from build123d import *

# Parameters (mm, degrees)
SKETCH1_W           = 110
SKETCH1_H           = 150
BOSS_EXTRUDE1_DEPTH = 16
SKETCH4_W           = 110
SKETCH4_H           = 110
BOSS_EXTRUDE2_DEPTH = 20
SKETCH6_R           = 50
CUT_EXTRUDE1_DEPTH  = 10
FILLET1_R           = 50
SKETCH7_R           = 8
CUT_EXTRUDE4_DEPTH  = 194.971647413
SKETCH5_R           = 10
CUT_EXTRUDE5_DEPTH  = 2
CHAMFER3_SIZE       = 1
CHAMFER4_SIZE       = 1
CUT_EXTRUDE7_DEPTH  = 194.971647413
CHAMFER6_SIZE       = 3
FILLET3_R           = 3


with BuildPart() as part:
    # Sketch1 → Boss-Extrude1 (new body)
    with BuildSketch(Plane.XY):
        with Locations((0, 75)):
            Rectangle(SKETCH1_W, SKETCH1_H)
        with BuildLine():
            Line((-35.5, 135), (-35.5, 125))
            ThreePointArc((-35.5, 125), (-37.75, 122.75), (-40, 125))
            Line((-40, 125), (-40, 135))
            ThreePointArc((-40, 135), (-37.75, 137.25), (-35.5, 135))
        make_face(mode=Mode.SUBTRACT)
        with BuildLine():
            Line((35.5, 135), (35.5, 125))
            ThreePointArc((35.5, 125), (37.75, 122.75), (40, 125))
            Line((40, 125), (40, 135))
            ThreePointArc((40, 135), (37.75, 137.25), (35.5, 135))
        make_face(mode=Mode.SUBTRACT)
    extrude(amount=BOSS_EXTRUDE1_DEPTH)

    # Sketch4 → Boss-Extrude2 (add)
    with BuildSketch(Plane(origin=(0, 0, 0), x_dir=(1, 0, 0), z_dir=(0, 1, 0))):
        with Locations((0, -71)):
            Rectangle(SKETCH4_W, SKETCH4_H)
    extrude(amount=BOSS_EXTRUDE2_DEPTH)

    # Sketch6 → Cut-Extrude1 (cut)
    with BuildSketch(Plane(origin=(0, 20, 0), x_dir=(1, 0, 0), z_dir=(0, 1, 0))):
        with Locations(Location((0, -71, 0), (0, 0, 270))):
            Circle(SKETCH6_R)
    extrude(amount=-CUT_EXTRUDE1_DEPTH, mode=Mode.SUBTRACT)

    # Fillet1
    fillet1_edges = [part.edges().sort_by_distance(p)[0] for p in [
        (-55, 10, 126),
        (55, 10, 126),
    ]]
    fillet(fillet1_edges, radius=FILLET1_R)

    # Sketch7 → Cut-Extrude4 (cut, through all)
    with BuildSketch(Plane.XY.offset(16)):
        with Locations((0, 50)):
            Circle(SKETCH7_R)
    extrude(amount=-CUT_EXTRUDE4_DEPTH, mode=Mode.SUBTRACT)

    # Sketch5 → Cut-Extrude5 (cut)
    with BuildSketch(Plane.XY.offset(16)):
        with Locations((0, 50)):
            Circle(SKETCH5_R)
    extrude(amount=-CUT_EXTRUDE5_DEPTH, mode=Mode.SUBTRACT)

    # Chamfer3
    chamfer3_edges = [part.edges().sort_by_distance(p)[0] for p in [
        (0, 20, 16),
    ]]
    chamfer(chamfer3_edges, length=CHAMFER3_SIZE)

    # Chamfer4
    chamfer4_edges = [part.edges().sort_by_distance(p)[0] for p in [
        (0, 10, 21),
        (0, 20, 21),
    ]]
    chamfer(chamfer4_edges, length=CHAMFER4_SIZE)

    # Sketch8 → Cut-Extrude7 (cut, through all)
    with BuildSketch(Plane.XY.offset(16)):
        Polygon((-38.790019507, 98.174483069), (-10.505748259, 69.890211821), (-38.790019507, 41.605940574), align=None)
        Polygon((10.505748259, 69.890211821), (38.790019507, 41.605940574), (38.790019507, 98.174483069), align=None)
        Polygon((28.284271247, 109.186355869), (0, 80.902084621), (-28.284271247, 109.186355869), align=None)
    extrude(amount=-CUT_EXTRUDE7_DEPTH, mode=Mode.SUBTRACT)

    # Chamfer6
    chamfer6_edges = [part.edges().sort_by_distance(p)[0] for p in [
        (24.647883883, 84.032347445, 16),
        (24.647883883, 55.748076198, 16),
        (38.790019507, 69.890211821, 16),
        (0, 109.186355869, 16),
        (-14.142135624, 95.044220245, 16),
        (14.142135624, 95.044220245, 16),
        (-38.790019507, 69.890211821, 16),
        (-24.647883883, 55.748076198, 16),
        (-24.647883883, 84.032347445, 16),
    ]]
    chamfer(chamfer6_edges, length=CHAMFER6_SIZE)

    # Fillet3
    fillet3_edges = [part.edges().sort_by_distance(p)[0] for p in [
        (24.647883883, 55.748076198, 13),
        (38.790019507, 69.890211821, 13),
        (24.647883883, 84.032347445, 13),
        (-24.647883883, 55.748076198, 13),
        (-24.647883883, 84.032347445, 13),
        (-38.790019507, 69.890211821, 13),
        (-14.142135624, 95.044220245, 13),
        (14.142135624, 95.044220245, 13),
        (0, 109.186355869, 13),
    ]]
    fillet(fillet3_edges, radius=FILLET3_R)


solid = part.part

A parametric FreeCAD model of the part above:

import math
import FreeCAD as App
import Part
import Sketcher
Q = App.Units.Quantity


def edges_at(feature, points):
    """Names of the edges that pass closest to the given points."""
    edges = feature.Shape.Edges
    near = lambda p: min(range(len(edges)), key=lambda i: edges[i].distToShape(Part.Vertex(*p))[0])
    return sorted({f"Edge{near(p) + 1}" for p in points})

doc = App.newDocument("Part")
body = doc.addObject("PartDesign::Body", "Body")

sketch1 = body.newObject("Sketcher::SketchObject", "Sketch")
sketch1.AttachmentSupport = (doc.getObject("XY_Plane"), [""])
sketch1.MapMode = "FlatFace"
sketch1.addGeometry(Part.LineSegment(App.Vector(-55, 150, 0), App.Vector(-55, 0, 0)), False)
sketch1.addGeometry(Part.LineSegment(App.Vector(-55, 0, 0), App.Vector(55, 0, 0)), False)
sketch1.addGeometry(Part.LineSegment(App.Vector(55, 0, 0), App.Vector(55, 150, 0)), False)
sketch1.addGeometry(Part.LineSegment(App.Vector(55, 150, 0), App.Vector(-55, 150, 0)), False)
sketch1.addGeometry(Part.ArcOfCircle(Part.Circle(App.Vector(-37.75, 135, 0), App.Vector(0, 0, 1), 2.25), math.radians(0), math.radians(180)), False)
sketch1.addGeometry(Part.LineSegment(App.Vector(-35.5, 135, 0), App.Vector(-35.5, 125, 0)), False)
sketch1.addGeometry(Part.ArcOfCircle(Part.Circle(App.Vector(-37.75, 125, 0), App.Vector(0, 0, 1), 2.25), math.radians(180), math.radians(360)), False)
sketch1.addGeometry(Part.LineSegment(App.Vector(-40, 125, 0), App.Vector(-40, 135, 0)), False)
sketch1.addGeometry(Part.LineSegment(App.Vector(35.5, 125, 0), App.Vector(35.5, 135, 0)), False)
sketch1.addGeometry(Part.ArcOfCircle(Part.Circle(App.Vector(37.75, 135, 0), App.Vector(0, 0, 1), 2.25), math.radians(0), math.radians(180)), False)
sketch1.addGeometry(Part.LineSegment(App.Vector(40, 135, 0), App.Vector(40, 125, 0)), False)
sketch1.addGeometry(Part.ArcOfCircle(Part.Circle(App.Vector(37.75, 125, 0), App.Vector(0, 0, 1), 2.25), math.radians(180), math.radians(360)), False)
sketch1.addConstraint(Sketcher.Constraint("Coincident", 0, 2, 1, 1))
sketch1.addConstraint(Sketcher.Constraint("Coincident", 1, 2, 2, 1))
sketch1.addConstraint(Sketcher.Constraint("Coincident", 2, 2, 3, 1))
sketch1.addConstraint(Sketcher.Constraint("Coincident", 3, 2, 0, 1))
sketch1.addConstraint(Sketcher.Constraint("Tangent", 4, 1, 5, 1))
sketch1.addConstraint(Sketcher.Constraint("Tangent", 5, 2, 6, 2))
sketch1.addConstraint(Sketcher.Constraint("Tangent", 6, 1, 7, 1))
sketch1.addConstraint(Sketcher.Constraint("Tangent", 7, 2, 4, 2))
sketch1.addConstraint(Sketcher.Constraint("Tangent", 8, 2, 9, 2))
sketch1.addConstraint(Sketcher.Constraint("Tangent", 9, 1, 10, 1))
sketch1.addConstraint(Sketcher.Constraint("Tangent", 10, 2, 11, 2))
sketch1.addConstraint(Sketcher.Constraint("Tangent", 11, 1, 8, 1))
sketch1.addConstraint(Sketcher.Constraint("Vertical", 0))
sketch1.addConstraint(Sketcher.Constraint("Horizontal", 1))
sketch1.addConstraint(Sketcher.Constraint("Vertical", 2))
sketch1.addConstraint(Sketcher.Constraint("Horizontal", 3))
sketch1.addConstraint(Sketcher.Constraint("Vertical", 5))
sketch1.addConstraint(Sketcher.Constraint("Vertical", 7))
sketch1.addConstraint(Sketcher.Constraint("Vertical", 8))
sketch1.addConstraint(Sketcher.Constraint("Vertical", 10))
sketch1.addConstraint(Sketcher.Constraint("Equal", 6, 9))
sketch1.addConstraint(Sketcher.Constraint("Symmetric", 0, 2, 1, 2, -1, 1))
sketch1.addConstraint(Sketcher.Constraint("Symmetric", 4, 3, 9, 3, -2))
sketch1.addConstraint(Sketcher.Constraint("Horizontal", 6, 3, 11, 3))
sketch1.addConstraint(Sketcher.Constraint("DistanceX", 1, 1, 1, 2, Q("110 mm")))
sketch1.addConstraint(Sketcher.Constraint("DistanceY", 0, 2, 0, 1, Q("150 mm")))
sketch1.addConstraint(Sketcher.Constraint("DistanceY", 5, 2, 5, 1, Q("10 mm")))
sketch1.addConstraint(Sketcher.Constraint("Radius", 4, Q("2.25 mm")))
sketch1.addConstraint(Sketcher.Constraint("DistanceY", -1, 1, 4, 3, Q("135 mm")))
sketch1.addConstraint(Sketcher.Constraint("DistanceX", 6, 1, -1, 1, Q("40 mm")))
pad1 = body.newObject("PartDesign::Pad", "Pad")
pad1.Profile = sketch1
pad1.Length = 16

sketch2 = body.newObject("Sketcher::SketchObject", "Sketch001")
sketch2.AttachmentSupport = (doc.getObject("XZ_Plane"), [""])
sketch2.MapMode = "FlatFace"
sketch2.addGeometry(Part.LineSegment(App.Vector(-55, 16, 0), App.Vector(-55, 126, 0)), False)
sketch2.addGeometry(Part.LineSegment(App.Vector(-55, 126, 0), App.Vector(55, 126, 0)), False)
sketch2.addGeometry(Part.LineSegment(App.Vector(55, 126, 0), App.Vector(55, 16, 0)), False)
sketch2.addGeometry(Part.LineSegment(App.Vector(55, 16, 0), App.Vector(-55, 16, 0)), False)
sketch2.addConstraint(Sketcher.Constraint("Coincident", 0, 2, 1, 1))
sketch2.addConstraint(Sketcher.Constraint("Coincident", 1, 2, 2, 1))
sketch2.addConstraint(Sketcher.Constraint("Coincident", 2, 2, 3, 1))
sketch2.addConstraint(Sketcher.Constraint("Coincident", 3, 2, 0, 1))
sketch2.addConstraint(Sketcher.Constraint("Vertical", 0))
sketch2.addConstraint(Sketcher.Constraint("Horizontal", 1))
sketch2.addConstraint(Sketcher.Constraint("Vertical", 2))
sketch2.addConstraint(Sketcher.Constraint("Horizontal", 3))
sketch2.addConstraint(Sketcher.Constraint("Equal", 3, 0))
sketch2.addConstraint(Sketcher.Constraint("DistanceX", 1, 1, 1, 2, Q("110 mm")))
sketch2.addConstraint(Sketcher.Constraint("DistanceX", 0, 2, -1, 1, Q("55 mm")))
sketch2.addConstraint(Sketcher.Constraint("DistanceY", -1, 1, 0, 2, Q("126 mm")))
pad2 = body.newObject("PartDesign::Pad", "Pad001")
pad2.Profile = sketch2
pad2.Length = 20
pad2.Reversed = True

sketch3 = body.newObject("Sketcher::SketchObject", "Sketch002")
sketch3.AttachmentSupport = (doc.getObject("XZ_Plane"), [""])
sketch3.MapMode = "FlatFace"
sketch3.AttachmentOffset = App.Placement(App.Vector(0, 0, -20), App.Rotation())
sketch3.addGeometry(Part.Circle(App.Vector(0, 71, 0), App.Vector(0, 0, 1), 50), False)
sketch3.addConstraint(Sketcher.Constraint("PointOnObject", 0, 3, -2))
sketch3.addConstraint(Sketcher.Constraint("Diameter", 0, Q("100 mm")))
sketch3.addConstraint(Sketcher.Constraint("DistanceY", -1, 1, 0, 3, Q("71 mm")))
pocket1 = body.newObject("PartDesign::Pocket", "Pocket")
pocket1.Profile = sketch3
pocket1.Length = 10
pocket1.Reversed = True
doc.recompute()

fillet = body.newObject("PartDesign::Fillet", "Fillet")
fillet.Base = (pocket1, edges_at(pocket1, [(-55, 10, 126), (55, 10, 126)]))
fillet.Radius = 50

sketch4 = body.newObject("Sketcher::SketchObject", "Sketch003")
sketch4.AttachmentSupport = (doc.getObject("XY_Plane"), [""])
sketch4.MapMode = "FlatFace"
sketch4.AttachmentOffset = App.Placement(App.Vector(0, 0, 16), App.Rotation())
sketch4.addGeometry(Part.Circle(App.Vector(0, 50, 0), App.Vector(0, 0, 1), 8), False)
sketch4.addConstraint(Sketcher.Constraint("PointOnObject", 0, 3, -2))
sketch4.addConstraint(Sketcher.Constraint("Diameter", 0, Q("16 mm")))
sketch4.addConstraint(Sketcher.Constraint("DistanceY", -1, 1, 0, 3, Q("50 mm")))
pocket2 = body.newObject("PartDesign::Pocket", "Pocket001")
pocket2.Profile = sketch4
pocket2.Type = "ThroughAll"

sketch5 = body.newObject("Sketcher::SketchObject", "Sketch004")
sketch5.AttachmentSupport = (doc.getObject("XY_Plane"), [""])
sketch5.MapMode = "FlatFace"
sketch5.AttachmentOffset = App.Placement(App.Vector(0, 0, 16), App.Rotation())
sketch5.addGeometry(Part.Circle(App.Vector(0, 50, 0), App.Vector(0, 0, 1), 10), False)
sketch5.addConstraint(Sketcher.Constraint("PointOnObject", 0, 3, -2))
sketch5.addConstraint(Sketcher.Constraint("Diameter", 0, Q("20 mm")))
sketch5.addConstraint(Sketcher.Constraint("DistanceY", -1, 1, 0, 3, Q("50 mm")))
pocket3 = body.newObject("PartDesign::Pocket", "Pocket002")
pocket3.Profile = sketch5
pocket3.Length = 2
doc.recompute()

chamfer = body.newObject("PartDesign::Chamfer", "Chamfer")
chamfer.Base = (pocket3, edges_at(pocket3, [(0, 20, 16)]))
chamfer.Size = 1
doc.recompute()

chamfer2 = body.newObject("PartDesign::Chamfer", "Chamfer001")
chamfer2.Base = (chamfer, edges_at(chamfer, [(0, 10, 21), (0, 20, 21)]))
chamfer2.Size = 1

sketch6 = body.newObject("Sketcher::SketchObject", "Sketch005")
sketch6.AttachmentSupport = (doc.getObject("XY_Plane"), [""])
sketch6.MapMode = "FlatFace"
sketch6.AttachmentOffset = App.Placement(App.Vector(0, 0, 16), App.Rotation())
sketch6.addGeometry(Part.LineSegment(App.Vector(-10.505748, 69.890212, 0), App.Vector(-38.79002, 98.174483, 0)), False)
sketch6.addGeometry(Part.LineSegment(App.Vector(-38.79002, 98.174483, 0), App.Vector(-38.79002, 41.605941, 0)), False)
sketch6.addGeometry(Part.LineSegment(App.Vector(-38.79002, 41.605941, 0), App.Vector(-10.505748, 69.890212, 0)), False)
sketch6.addGeometry(Part.LineSegment(App.Vector(10.505748, 69.890212, 0), App.Vector(38.79002, 41.605941, 0)), False)
sketch6.addGeometry(Part.LineSegment(App.Vector(38.79002, 41.605941, 0), App.Vector(38.79002, 98.174483, 0)), False)
sketch6.addGeometry(Part.LineSegment(App.Vector(38.79002, 98.174483, 0), App.Vector(10.505748, 69.890212, 0)), False)
sketch6.addGeometry(Part.LineSegment(App.Vector(0, 80.902085, 0), App.Vector(28.284271, 109.186356, 0)), False)
sketch6.addGeometry(Part.LineSegment(App.Vector(28.284271, 109.186356, 0), App.Vector(-28.284271, 109.186356, 0)), False)
sketch6.addGeometry(Part.LineSegment(App.Vector(-28.284271, 109.186356, 0), App.Vector(0, 80.902085, 0)), False)
sketch6.addConstraint(Sketcher.Constraint("Coincident", 0, 2, 1, 1))
sketch6.addConstraint(Sketcher.Constraint("Coincident", 1, 2, 2, 1))
sketch6.addConstraint(Sketcher.Constraint("Coincident", 2, 2, 0, 1))
sketch6.addConstraint(Sketcher.Constraint("Coincident", 3, 2, 4, 1))
sketch6.addConstraint(Sketcher.Constraint("Coincident", 4, 2, 5, 1))
sketch6.addConstraint(Sketcher.Constraint("Coincident", 5, 2, 3, 1))
sketch6.addConstraint(Sketcher.Constraint("Coincident", 6, 2, 7, 1))
sketch6.addConstraint(Sketcher.Constraint("Coincident", 7, 2, 8, 1))
sketch6.addConstraint(Sketcher.Constraint("Coincident", 8, 2, 6, 1))
sketch6.addConstraint(Sketcher.Constraint("Vertical", 1))
sketch6.addConstraint(Sketcher.Constraint("Vertical", 4))
sketch6.addConstraint(Sketcher.Constraint("Horizontal", 7))
sketch6.addConstraint(Sketcher.Constraint("Symmetric", 1, 2, 3, 2, -2))
sketch6.addConstraint(Sketcher.Constraint("Symmetric", 2, 2, 5, 2, -2))
sketch6.addConstraint(Sketcher.Constraint("PointOnObject", 8, 2, -2))
sketch6.addConstraint(Sketcher.Constraint("Perpendicular", 0, 2))
sketch6.addConstraint(Sketcher.Constraint("Perpendicular", 2, 3))
sketch6.addConstraint(Sketcher.Constraint("Perpendicular", 3, 5))
sketch6.addConstraint(Sketcher.Constraint("Parallel", 5, 6))
sketch6.addConstraint(Sketcher.Constraint("Perpendicular", 6, 8))
sketch6.addConstraint(Sketcher.Constraint("Equal", 7, 1))
sketch6.addConstraint(Sketcher.Constraint("Distance", 0, Q("40 mm")))
sketch6.addConstraint(Sketcher.Constraint("DistanceY", 8, 2, 0, 2, Q("17.272398 mm")))
sketch6.addConstraint(Sketcher.Constraint("DistanceX", 0, 2, -1, 1, Q("38.79002 mm")))
sketch6.addConstraint(Sketcher.Constraint("DistanceY", -1, 1, 1, 2, Q("41.605941 mm")))
pocket4 = body.newObject("PartDesign::Pocket", "Pocket003")
pocket4.Profile = sketch6
pocket4.Type = "ThroughAll"
doc.recompute()

chamfer3 = body.newObject("PartDesign::Chamfer", "Chamfer002")
chamfer3.Base = (pocket4, edges_at(pocket4, [
    (24.648, 84.032, 16),
    (24.648, 55.748, 16),
    (38.79, 69.89, 16),
    (0, 109.186, 16),
    (-14.142, 95.044, 16),
    (14.142, 95.044, 16),
    (-38.79, 69.89, 16),
    (-24.648, 55.748, 16),
    (-24.648, 84.032, 16),
]))
chamfer3.Size = 3
doc.recompute()

fillet2 = body.newObject("PartDesign::Fillet", "Fillet001")
fillet2.Base = (chamfer3, edges_at(chamfer3, [
    (24.648, 55.748, 13),
    (38.79, 69.89, 13),
    (24.648, 84.032, 13),
    (-24.648, 55.748, 13),
    (-24.648, 84.032, 13),
    (-38.79, 69.89, 13),
    (-14.142, 95.044, 13),
    (14.142, 95.044, 13),
    (0, 109.186, 13),
]))
fillet2.Radius = 3

doc.recompute()
